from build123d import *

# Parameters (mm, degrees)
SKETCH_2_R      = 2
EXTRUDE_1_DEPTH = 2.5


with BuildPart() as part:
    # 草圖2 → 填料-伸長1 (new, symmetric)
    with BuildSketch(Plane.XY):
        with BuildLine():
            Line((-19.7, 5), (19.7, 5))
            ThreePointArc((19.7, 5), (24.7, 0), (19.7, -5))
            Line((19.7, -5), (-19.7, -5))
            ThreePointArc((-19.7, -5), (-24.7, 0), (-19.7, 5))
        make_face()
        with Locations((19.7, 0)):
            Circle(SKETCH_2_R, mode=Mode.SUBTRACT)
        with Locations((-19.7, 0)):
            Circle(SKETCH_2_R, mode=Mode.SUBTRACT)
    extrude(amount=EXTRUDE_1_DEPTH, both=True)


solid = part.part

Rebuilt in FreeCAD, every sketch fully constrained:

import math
import FreeCAD as App
import Part
import Sketcher

V = App.Vector
Q = App.Units.Quantity

doc = App.newDocument("Part")
body = doc.addObject("PartDesign::Body", "Body")

# Sketch on XY plane
sketch1 = body.newObject("Sketcher::SketchObject", "Sketch")
sketch1.AttachmentSupport = (doc.getObject("XY_Plane"), [""])
sketch1.MapMode = "FlatFace"
sketch1.addGeometry([
    Part.LineSegment(V(19.7, 5, 0), V(-19.7, 5, 0)),  # 0
    Part.ArcOfCircle(Part.Circle(V(-19.7, 0, 0), V(0, 0, 1), 5), math.radians(90), math.radians(270)),  # 1
    Part.LineSegment(V(-19.7, -5, 0), V(19.7, -5, 0)),  # 2
    Part.ArcOfCircle(Part.Circle(V(19.7, 0, 0), V(0, 0, 1), 5), math.radians(-90), math.radians(90)),  # 3
    Part.Circle(V(19.7, 0, 0), V(0, 0, 1), 2),  # 4
    Part.Circle(V(-19.7, 0, 0), V(0, 0, 1), 2),  # 5
], False)
sketch1.addConstraint([
    Sketcher.Constraint("Tangent", 0, 2, 1, 1),
    Sketcher.Constraint("Tangent", 1, 2, 2, 1),
    Sketcher.Constraint("Tangent", 2, 2, 3, 1),
    Sketcher.Constraint("Tangent", 3, 2, 0, 1),
    Sketcher.Constraint("Horizontal", 0),
    Sketcher.Constraint("Horizontal", 2),
    Sketcher.Constraint("Coincident", 4, 3, 3, 3),
    Sketcher.Constraint("Coincident", 5, 3, 1, 3),
    Sketcher.Constraint("Equal", 4, 5),
    Sketcher.Constraint("Symmetric", 1, 3, 3, 3, -1, 1),
    Sketcher.Constraint("Diameter", 4, Q("4 mm")),
    Sketcher.Constraint("Radius", 1, Q("5 mm")),
    Sketcher.Constraint("DistanceX", 0, 2, 0, 1, Q("39.4 mm")),
])
pad1 = body.newObject("PartDesign::Pad", "Pad")
pad1.Profile = sketch1
pad1.Length = 5
pad1.Midplane = True

doc.recompute()
